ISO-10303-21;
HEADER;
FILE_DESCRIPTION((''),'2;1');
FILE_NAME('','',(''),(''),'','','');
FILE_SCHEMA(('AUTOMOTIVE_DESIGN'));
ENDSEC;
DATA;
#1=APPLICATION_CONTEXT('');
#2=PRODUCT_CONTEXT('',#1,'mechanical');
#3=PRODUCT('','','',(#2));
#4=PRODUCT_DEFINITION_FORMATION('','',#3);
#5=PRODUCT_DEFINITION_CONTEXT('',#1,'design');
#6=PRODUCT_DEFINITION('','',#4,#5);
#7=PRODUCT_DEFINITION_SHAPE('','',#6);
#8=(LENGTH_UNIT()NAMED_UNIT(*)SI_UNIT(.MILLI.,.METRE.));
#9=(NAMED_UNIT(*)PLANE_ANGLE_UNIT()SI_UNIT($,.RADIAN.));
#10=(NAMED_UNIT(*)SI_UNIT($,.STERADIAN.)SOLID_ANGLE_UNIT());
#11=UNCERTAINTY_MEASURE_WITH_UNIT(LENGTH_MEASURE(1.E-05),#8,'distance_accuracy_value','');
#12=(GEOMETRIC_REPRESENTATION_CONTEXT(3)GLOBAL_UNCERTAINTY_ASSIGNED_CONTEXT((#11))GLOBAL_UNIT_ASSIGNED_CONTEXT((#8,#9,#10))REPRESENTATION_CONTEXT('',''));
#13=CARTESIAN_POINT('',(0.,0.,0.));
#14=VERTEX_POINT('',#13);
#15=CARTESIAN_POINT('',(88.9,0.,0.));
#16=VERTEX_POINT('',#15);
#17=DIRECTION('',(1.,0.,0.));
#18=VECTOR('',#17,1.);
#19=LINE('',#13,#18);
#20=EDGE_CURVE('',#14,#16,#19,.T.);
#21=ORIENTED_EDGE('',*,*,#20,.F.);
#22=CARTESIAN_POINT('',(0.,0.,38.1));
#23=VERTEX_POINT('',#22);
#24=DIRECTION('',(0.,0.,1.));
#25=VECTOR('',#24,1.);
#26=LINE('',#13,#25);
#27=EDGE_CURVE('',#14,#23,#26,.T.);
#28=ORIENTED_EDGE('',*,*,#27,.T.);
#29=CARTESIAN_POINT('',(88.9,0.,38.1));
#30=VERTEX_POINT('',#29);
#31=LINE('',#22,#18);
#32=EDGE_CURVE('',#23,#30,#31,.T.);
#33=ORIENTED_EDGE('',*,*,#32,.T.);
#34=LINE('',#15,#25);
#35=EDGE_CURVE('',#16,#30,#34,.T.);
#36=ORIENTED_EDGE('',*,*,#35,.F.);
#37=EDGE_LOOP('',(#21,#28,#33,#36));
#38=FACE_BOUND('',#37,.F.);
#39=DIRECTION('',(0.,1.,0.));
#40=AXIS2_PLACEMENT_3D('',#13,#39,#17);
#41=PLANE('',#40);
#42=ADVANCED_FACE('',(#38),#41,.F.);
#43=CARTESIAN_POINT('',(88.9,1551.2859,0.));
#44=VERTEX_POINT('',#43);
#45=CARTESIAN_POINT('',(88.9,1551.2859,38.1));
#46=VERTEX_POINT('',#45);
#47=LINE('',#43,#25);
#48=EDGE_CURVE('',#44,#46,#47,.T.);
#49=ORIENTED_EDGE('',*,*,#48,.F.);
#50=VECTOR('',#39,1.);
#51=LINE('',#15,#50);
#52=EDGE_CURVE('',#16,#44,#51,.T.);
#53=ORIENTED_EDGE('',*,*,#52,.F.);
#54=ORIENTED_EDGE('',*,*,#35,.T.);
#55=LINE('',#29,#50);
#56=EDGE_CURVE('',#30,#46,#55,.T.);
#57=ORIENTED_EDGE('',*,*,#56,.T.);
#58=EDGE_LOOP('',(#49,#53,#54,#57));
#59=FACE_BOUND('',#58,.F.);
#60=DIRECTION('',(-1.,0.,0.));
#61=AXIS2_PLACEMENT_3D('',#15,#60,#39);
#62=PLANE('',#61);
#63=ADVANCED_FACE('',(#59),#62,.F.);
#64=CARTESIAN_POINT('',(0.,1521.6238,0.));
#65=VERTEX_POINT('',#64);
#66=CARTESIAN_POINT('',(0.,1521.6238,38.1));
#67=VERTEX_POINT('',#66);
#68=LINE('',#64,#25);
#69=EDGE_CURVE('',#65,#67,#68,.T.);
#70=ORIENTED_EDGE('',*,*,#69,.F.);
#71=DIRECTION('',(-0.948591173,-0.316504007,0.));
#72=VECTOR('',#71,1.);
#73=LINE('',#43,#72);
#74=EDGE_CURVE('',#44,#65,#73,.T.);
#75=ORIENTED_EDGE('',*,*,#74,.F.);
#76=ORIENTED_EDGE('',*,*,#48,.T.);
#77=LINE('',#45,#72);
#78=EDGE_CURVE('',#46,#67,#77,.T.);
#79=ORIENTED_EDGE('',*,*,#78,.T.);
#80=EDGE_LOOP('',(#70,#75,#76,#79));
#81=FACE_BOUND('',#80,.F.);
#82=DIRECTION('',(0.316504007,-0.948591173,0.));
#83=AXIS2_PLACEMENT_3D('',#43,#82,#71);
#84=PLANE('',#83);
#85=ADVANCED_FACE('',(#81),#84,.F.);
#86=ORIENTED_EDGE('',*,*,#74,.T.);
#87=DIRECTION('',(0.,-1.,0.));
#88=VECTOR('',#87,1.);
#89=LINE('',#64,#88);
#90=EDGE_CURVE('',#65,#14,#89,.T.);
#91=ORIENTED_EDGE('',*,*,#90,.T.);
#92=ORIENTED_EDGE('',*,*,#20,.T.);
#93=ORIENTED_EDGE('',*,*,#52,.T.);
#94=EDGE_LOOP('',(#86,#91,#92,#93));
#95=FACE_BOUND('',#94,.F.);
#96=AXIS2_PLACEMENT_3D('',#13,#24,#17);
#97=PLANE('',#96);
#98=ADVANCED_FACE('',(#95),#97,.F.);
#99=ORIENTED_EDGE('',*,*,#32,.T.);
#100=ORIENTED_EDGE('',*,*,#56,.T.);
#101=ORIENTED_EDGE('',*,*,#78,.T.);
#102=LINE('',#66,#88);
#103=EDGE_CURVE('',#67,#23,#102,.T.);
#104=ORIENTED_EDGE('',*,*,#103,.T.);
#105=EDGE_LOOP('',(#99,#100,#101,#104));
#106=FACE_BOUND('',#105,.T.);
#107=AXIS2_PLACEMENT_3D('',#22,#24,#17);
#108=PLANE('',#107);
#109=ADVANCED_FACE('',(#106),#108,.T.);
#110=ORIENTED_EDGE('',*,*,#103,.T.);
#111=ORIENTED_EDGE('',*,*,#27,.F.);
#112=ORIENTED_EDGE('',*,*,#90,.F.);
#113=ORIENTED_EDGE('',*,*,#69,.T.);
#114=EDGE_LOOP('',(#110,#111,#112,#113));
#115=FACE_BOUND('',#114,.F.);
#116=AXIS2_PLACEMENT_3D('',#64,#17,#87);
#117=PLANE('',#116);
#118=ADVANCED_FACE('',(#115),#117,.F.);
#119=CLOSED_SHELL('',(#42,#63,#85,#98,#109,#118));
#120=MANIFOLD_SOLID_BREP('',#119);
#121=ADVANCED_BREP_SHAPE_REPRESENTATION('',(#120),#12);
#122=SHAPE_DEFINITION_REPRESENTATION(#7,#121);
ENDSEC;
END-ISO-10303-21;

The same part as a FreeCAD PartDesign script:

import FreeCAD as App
import Part
import Sketcher
from FreeCAD import Vector
Q = App.Units.Quantity


def add_polygon(sketch, points):
    """Adds a closed chain of lines whose ends are joined by coincident constraints."""
    first, n = sketch.GeometryCount, len(points)
    for a, b in zip(points, points[1:] + points[:1]):
        sketch.addGeometry(Part.LineSegment(App.Vector(*a, 0), App.Vector(*b, 0)), False)
    for i in range(n):
        sketch.addConstraint(Sketcher.Constraint("Coincident", first + i, 2, first + (i + 1) % n, 1))

doc = App.newDocument("Part")
body = doc.addObject("PartDesign::Body", "Body")

sketch1 = body.newObject("Sketcher::SketchObject", "Sketch")
sketch1.AttachmentSupport = (doc.getObject("XY_Plane"), [""])
sketch1.MapMode = "FlatFace"
add_polygon(sketch1, [(0, 1522), (0, 0), (89, 0), (89, 1551)])
sketch1.addConstraint(Sketcher.Constraint("Vertical", 0))
sketch1.addConstraint(Sketcher.Constraint("Horizontal", 1))
sketch1.addConstraint(Sketcher.Constraint("Vertical", 2))
sketch1.addConstraint(Sketcher.Constraint("Coincident", 0, 2, -1, 1))
sketch1.addConstraint(Sketcher.Constraint("DistanceX", 1, 1, 1, 2, Q("3.5 in")))
sketch1.addConstraint(Sketcher.Constraint("DistanceY", 2, 1, 2, 2, 1551.286))
sketch1.addConstraint(Sketcher.Constraint("DistanceY", 0, 2, 0, 1, 1521.6238))
pad1 = body.newObject("PartDesign::Pad", "Pad")
pad1.Profile = sketch1
pad1.Length = Q("1.5 in")

doc.recompute()
